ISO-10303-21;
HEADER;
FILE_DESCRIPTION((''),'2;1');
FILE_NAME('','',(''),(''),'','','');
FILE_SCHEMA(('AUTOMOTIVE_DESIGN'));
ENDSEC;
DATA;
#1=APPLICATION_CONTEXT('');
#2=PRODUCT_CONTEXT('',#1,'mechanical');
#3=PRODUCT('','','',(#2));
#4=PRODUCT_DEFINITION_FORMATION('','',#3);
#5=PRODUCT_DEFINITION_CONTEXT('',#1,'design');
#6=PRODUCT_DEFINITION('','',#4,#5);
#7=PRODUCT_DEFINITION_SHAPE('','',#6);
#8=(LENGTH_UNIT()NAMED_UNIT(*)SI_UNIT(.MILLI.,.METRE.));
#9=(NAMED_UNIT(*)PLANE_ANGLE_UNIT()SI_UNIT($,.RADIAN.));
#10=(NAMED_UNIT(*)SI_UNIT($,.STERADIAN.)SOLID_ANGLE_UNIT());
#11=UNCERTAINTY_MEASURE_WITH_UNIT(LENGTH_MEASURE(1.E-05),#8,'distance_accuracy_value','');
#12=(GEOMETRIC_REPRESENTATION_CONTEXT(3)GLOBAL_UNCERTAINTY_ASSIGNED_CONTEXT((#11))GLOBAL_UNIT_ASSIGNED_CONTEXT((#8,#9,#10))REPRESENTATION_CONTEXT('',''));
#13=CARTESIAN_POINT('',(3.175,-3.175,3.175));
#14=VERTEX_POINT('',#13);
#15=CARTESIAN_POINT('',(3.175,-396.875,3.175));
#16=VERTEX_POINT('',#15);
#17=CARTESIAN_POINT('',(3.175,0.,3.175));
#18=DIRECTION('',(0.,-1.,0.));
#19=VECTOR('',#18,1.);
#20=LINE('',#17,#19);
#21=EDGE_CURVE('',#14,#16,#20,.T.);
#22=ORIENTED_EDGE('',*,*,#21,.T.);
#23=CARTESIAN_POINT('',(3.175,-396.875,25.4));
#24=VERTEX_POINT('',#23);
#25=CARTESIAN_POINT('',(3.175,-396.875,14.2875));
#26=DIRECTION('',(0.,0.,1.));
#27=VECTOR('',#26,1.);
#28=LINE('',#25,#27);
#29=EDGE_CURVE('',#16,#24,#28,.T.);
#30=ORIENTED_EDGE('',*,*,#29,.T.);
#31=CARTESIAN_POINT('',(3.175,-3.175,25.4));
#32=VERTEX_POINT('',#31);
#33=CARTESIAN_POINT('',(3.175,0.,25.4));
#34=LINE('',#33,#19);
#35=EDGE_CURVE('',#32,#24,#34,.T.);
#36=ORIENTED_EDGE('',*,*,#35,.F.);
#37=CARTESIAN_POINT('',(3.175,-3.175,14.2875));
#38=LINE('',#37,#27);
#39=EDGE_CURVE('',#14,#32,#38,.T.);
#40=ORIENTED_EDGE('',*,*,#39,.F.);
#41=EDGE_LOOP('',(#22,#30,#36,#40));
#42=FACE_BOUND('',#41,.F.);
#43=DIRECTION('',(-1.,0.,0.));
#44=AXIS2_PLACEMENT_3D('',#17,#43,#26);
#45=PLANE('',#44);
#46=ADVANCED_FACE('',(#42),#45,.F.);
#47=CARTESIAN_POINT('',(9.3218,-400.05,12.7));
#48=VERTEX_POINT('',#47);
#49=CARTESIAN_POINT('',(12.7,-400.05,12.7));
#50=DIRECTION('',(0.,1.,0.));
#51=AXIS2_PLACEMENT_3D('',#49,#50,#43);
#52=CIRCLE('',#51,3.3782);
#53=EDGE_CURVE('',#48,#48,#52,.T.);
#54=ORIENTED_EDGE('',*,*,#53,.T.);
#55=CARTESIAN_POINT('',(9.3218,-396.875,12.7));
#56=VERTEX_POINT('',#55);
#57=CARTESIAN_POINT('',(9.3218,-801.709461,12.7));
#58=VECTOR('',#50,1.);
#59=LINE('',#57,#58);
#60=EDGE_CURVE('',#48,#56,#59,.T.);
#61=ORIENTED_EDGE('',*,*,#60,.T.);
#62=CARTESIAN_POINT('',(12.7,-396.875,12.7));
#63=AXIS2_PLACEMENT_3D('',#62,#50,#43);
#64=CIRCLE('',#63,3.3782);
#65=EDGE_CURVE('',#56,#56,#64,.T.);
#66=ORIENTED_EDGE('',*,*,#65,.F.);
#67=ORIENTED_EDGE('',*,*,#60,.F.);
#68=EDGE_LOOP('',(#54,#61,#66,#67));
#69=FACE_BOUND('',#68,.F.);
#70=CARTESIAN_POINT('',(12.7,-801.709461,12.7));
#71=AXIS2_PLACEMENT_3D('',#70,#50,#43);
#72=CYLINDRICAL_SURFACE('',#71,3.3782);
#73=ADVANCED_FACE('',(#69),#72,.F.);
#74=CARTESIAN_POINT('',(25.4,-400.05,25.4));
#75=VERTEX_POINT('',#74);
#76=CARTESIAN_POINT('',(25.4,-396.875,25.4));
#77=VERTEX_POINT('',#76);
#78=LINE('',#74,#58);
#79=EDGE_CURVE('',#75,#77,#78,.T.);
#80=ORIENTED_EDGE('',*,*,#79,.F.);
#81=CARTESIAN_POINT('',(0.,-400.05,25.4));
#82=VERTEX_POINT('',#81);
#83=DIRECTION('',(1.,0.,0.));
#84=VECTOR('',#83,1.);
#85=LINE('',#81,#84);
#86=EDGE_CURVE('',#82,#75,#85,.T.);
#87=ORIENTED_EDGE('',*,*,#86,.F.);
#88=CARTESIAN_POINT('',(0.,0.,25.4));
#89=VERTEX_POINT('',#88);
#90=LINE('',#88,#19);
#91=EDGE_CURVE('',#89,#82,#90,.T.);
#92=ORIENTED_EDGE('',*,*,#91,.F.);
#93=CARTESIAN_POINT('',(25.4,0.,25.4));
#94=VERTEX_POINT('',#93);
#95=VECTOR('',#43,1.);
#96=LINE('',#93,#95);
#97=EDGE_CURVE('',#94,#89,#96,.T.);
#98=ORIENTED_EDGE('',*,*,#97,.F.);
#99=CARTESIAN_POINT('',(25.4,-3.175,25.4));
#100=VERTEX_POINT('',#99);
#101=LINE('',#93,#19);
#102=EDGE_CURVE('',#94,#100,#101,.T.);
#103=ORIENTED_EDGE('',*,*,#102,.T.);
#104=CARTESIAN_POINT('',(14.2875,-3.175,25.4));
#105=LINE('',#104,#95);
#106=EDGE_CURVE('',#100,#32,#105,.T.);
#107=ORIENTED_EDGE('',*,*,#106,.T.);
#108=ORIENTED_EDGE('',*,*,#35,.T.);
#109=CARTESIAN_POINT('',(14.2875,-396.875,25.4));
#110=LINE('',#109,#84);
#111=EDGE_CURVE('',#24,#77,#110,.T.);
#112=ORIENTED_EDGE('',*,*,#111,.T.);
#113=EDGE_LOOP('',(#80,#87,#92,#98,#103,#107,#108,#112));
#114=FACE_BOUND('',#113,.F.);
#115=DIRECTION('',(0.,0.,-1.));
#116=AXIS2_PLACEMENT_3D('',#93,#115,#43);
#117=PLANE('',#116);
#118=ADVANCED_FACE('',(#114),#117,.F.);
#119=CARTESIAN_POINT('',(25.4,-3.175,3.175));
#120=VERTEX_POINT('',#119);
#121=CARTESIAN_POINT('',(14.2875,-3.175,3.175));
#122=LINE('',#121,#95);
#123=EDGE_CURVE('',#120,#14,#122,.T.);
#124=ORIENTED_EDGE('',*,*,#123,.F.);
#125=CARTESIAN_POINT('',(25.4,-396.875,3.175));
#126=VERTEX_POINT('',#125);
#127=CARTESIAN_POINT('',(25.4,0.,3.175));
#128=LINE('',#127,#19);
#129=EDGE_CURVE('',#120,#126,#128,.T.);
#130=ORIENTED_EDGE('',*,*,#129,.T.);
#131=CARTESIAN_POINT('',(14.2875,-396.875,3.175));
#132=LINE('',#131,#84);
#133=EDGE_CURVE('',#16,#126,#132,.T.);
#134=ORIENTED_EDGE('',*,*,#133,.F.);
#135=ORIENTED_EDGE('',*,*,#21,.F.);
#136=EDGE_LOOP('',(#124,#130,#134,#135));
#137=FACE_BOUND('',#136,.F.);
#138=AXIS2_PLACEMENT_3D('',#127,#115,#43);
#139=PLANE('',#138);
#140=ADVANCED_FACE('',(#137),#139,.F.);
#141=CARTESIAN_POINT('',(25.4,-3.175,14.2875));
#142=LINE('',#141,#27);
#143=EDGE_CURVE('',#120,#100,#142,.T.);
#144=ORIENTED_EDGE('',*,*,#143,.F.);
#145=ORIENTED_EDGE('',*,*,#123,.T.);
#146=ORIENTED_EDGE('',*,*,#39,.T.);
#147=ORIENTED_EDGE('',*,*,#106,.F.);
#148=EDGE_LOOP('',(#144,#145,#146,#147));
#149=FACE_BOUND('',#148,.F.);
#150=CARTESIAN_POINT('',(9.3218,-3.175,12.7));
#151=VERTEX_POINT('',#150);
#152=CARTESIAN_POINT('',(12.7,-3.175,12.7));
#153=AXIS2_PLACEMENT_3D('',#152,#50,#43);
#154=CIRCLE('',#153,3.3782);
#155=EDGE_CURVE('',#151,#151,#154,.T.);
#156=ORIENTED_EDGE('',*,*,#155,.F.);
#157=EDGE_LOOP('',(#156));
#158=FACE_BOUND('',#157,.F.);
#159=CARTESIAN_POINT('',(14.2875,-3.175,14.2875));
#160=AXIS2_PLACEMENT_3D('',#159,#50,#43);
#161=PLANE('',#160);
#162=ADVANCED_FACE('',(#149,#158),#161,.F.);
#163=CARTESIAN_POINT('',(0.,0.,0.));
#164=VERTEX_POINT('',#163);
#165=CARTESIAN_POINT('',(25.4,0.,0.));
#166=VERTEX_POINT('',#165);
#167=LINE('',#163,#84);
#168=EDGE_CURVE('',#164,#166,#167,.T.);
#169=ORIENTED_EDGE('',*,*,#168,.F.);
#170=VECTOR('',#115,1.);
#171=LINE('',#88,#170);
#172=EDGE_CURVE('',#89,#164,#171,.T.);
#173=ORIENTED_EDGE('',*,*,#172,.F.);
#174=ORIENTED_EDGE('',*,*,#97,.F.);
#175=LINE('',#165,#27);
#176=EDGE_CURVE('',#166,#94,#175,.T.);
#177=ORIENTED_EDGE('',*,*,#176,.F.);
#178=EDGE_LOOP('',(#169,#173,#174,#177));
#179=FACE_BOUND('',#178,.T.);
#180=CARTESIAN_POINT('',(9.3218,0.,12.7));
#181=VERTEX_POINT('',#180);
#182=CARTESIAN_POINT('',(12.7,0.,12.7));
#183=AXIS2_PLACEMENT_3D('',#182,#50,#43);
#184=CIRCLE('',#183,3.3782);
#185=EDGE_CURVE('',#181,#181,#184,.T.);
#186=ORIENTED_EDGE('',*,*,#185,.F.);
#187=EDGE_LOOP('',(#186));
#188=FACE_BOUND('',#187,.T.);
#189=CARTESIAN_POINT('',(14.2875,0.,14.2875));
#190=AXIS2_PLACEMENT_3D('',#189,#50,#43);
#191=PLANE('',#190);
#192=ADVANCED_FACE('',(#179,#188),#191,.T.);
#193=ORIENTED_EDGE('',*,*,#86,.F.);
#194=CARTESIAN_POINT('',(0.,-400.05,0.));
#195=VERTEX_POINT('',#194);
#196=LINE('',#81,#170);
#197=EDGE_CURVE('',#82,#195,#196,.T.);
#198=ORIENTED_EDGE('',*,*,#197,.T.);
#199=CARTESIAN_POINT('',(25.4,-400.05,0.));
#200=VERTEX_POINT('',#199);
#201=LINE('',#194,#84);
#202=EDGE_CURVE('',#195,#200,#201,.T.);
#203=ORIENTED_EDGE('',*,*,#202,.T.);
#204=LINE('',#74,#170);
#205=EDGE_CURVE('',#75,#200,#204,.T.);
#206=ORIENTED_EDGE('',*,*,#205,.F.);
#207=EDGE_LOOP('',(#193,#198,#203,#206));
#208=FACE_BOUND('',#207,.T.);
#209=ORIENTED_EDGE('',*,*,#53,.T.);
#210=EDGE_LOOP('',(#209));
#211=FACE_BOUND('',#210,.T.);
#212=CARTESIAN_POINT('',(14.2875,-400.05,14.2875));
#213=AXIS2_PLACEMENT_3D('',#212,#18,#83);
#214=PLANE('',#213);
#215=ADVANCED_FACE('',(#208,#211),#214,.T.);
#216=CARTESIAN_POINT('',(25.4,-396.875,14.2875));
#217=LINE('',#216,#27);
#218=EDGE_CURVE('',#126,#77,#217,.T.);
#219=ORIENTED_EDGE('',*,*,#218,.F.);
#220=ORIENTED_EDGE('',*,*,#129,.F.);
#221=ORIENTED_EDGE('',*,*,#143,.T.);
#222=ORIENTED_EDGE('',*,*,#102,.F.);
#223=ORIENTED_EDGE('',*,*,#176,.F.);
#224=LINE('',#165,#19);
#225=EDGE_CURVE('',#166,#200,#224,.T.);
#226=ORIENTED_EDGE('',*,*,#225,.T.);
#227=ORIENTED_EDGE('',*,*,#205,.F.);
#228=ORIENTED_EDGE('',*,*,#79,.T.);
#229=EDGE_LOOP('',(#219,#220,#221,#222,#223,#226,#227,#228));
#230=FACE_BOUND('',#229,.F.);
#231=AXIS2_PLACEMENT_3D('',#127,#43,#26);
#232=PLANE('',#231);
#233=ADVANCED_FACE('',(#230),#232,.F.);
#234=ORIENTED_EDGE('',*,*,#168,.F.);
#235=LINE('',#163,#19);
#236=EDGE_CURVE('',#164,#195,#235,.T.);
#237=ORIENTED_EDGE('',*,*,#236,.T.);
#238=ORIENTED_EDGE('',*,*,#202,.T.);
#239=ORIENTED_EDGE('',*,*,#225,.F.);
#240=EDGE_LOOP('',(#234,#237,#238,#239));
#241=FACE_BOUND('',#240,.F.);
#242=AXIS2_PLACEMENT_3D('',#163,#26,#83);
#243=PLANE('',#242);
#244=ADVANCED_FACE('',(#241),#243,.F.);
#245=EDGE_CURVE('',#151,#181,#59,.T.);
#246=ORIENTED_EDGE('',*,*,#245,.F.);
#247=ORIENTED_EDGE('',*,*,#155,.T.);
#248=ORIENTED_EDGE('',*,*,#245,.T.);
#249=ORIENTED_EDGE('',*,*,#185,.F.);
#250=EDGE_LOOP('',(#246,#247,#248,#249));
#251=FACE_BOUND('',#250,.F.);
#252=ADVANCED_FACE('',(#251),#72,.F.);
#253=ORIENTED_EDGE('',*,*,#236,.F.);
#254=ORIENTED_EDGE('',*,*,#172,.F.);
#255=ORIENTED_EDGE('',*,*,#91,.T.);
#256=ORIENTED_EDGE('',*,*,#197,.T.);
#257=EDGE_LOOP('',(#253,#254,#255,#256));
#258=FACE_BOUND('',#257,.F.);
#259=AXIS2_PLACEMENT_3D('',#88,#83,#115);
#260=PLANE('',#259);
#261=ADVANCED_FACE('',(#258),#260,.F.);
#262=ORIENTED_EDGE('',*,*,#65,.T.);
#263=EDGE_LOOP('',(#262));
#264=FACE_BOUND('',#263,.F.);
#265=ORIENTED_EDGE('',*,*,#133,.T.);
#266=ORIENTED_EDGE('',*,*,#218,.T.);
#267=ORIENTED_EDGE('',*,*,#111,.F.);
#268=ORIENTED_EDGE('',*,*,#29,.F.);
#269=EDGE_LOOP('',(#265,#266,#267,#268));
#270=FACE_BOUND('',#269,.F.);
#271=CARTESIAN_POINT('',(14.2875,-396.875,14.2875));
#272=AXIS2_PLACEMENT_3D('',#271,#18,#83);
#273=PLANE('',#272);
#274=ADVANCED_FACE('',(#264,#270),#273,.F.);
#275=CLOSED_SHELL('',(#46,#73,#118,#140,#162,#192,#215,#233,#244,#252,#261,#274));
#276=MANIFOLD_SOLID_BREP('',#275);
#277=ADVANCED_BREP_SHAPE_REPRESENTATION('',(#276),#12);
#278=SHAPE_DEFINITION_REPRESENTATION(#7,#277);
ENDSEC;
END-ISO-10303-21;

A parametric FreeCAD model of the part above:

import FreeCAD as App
import Part
import Sketcher

V = App.Vector
Q = App.Units.Quantity

doc = App.newDocument("Part")
body = doc.addObject("PartDesign::Body", "Body")

# Sketch on XZ plane
sketch1 = body.newObject("Sketcher::SketchObject", "Sketch")
sketch1.AttachmentSupport = (doc.getObject("XZ_Plane"), [""])
sketch1.MapMode = "FlatFace"
sketch1.addGeometry(Part.LineSegment(V(0, 25.4, 0), V(0, 0, 0)), False)
sketch1.addGeometry(Part.LineSegment(V(0, 0, 0), V(25.4, 0, 0)), False)
sketch1.addGeometry(Part.LineSegment(V(25.4, 0, 0), V(25.4, 3.2, 0)), False)
sketch1.addGeometry(Part.LineSegment(V(25.4, 3.2, 0), V(3.2, 3.2, 0)), False)
sketch1.addGeometry(Part.LineSegment(V(3.2, 3.2, 0), V(3.2, 25.4, 0)), False)
sketch1.addGeometry(Part.LineSegment(V(3.2, 25.4, 0), V(0, 25.4, 0)), False)
sketch1.addConstraint(Sketcher.Constraint("Coincident", 0, 2, 1, 1))
sketch1.addConstraint(Sketcher.Constraint("Coincident", 1, 2, 2, 1))
sketch1.addConstraint(Sketcher.Constraint("Coincident", 2, 2, 3, 1))
sketch1.addConstraint(Sketcher.Constraint("Coincident", 3, 2, 4, 1))
sketch1.addConstraint(Sketcher.Constraint("Coincident", 4, 2, 5, 1))
sketch1.addConstraint(Sketcher.Constraint("Coincident", 5, 2, 0, 1))
sketch1.addConstraint(Sketcher.Constraint("Vertical", 0))
sketch1.addConstraint(Sketcher.Constraint("Horizontal", 1))
sketch1.addConstraint(Sketcher.Constraint("Vertical", 2))
sketch1.addConstraint(Sketcher.Constraint("Horizontal", 3))
sketch1.addConstraint(Sketcher.Constraint("Vertical", 4))
sketch1.addConstraint(Sketcher.Constraint("Horizontal", 5))
sketch1.addConstraint(Sketcher.Constraint("Coincident", 0, 2, -1, 1))
sketch1.addConstraint(Sketcher.Constraint("Equal", 1, 0))
sketch1.addConstraint(Sketcher.Constraint("Equal", 5, 2))
sketch1.addConstraint(Sketcher.Constraint("DistanceX", 1, 1, 1, 2, Q("1 in")))
sketch1.addConstraint(Sketcher.Constraint("DistanceX", 3, 2, 3, 1, Q("0.875 in")))
pad1 = body.newObject("PartDesign::Pad", "Pad")
pad1.Profile = sketch1
pad1.Length = Q("15.75 in")

# Sketch on XZ plane
sketch2 = body.newObject("Sketcher::SketchObject", "Sketch001")
sketch2.AttachmentSupport = (doc.getObject("XZ_Plane"), [""])
sketch2.MapMode = "FlatFace"
sketch2.AttachmentOffset = App.Placement(V(0, 0, 15.75 * 25.4), App.Rotation())
sketch2.addGeometry(Part.LineSegment(V(3, 25, 0), V(3, 3, 0)), False)
sketch2.addGeometry(Part.LineSegment(V(3, 3, 0), V(25, 3, 0)), False)
sketch2.addGeometry(Part.LineSegment(V(25, 3, 0), V(25, 25, 0)), False)
sketch2.addGeometry(Part.LineSegment(V(25, 25, 0), V(3, 25, 0)), False)
sketch2.addConstraint(Sketcher.Constraint("Coincident", 0, 2, 1, 1))
sketch2.addConstraint(Sketcher.Constraint("Coincident", 1, 2, 2, 1))
sketch2.addConstraint(Sketcher.Constraint("Coincident", 2, 2, 3, 1))
sketch2.addConstraint(Sketcher.Constraint("Coincident", 3, 2, 0, 1))
sketch2.addConstraint(Sketcher.Constraint("Vertical", 0))
sketch2.addConstraint(Sketcher.Constraint("Horizontal", 1))
sketch2.addConstraint(Sketcher.Constraint("Vertical", 2))
sketch2.addConstraint(Sketcher.Constraint("Horizontal", 3))
sketch2.addConstraint(Sketcher.Constraint("Equal", 3, 0))
sketch2.addConstraint(Sketcher.Constraint("DistanceX", -1, 1, 1, 2, Q("1 in")))
sketch2.addConstraint(Sketcher.Constraint("DistanceY", -1, 1, 2, 2, Q("1 in")))
sketch2.addConstraint(Sketcher.Constraint("DistanceX", 1, 1, 1, 2, Q("0.875 in")))
pad2 = body.newObject("PartDesign::Pad", "Pad001")
pad2.Profile = sketch2
pad2.Length = Q("0.125 in")
pad2.Reversed = True

# Sketch on XZ plane
sketch3 = body.newObject("Sketcher::SketchObject", "Sketch002")
sketch3.AttachmentSupport = (doc.getObject("XZ_Plane"), [""])
sketch3.MapMode = "FlatFace"
sketch3.addGeometry(Part.LineSegment(V(25, 25, 0), V(25, 3, 0)), False)
sketch3.addGeometry(Part.LineSegment(V(25, 3, 0), V(3, 3, 0)), False)
sketch3.addGeometry(Part.LineSegment(V(3, 3, 0), V(3, 25, 0)), False)
sketch3.addGeometry(Part.LineSegment(V(3, 25, 0), V(25, 25, 0)), False)
sketch3.addConstraint(Sketcher.Constraint("Coincident", 0, 2, 1, 1))
sketch3.addConstraint(Sketcher.Constraint("Coincident", 1, 2, 2, 1))
sketch3.addConstraint(Sketcher.Constraint("Coincident", 2, 2, 3, 1))
sketch3.addConstraint(Sketcher.Constraint("Coincident", 3, 2, 0, 1))
sketch3.addConstraint(Sketcher.Constraint("Vertical", 0))
sketch3.addConstraint(Sketcher.Constraint("Horizontal", 1))
sketch3.addConstraint(Sketcher.Constraint("Vertical", 2))
sketch3.addConstraint(Sketcher.Constraint("Horizontal", 3))
sketch3.addConstraint(Sketcher.Constraint("Equal", 3, 0))
sketch3.addConstraint(Sketcher.Constraint("DistanceX", -1, 1, 0, 2, Q("1 in")))
sketch3.addConstraint(Sketcher.Constraint("DistanceY", -1, 1, 2, 2, Q("1 in")))
sketch3.addConstraint(Sketcher.Constraint("DistanceX", 1, 2, 1, 1, Q("0.875 in")))
pad3 = body.newObject("PartDesign::Pad", "Pad002")
pad3.Profile = sketch3
pad3.Length = Q("0.125 in")

# Sketch on XZ plane
sketch4 = body.newObject("Sketcher::SketchObject", "Sketch003")
sketch4.AttachmentSupport = (doc.getObject("XZ_Plane"), [""])
sketch4.MapMode = "FlatFace"
sketch4.AttachmentOffset = App.Placement(V(0, 0, 15.75 * 25.4), App.Rotation())
sketch4.addGeometry(Part.Circle(V(12.7, 12.7, 0), V(0, 0, 1), 3.4), False)
sketch4.addConstraint(Sketcher.Constraint("Diameter", 0, Q("0.266 in")))
sketch4.addConstraint(Sketcher.Constraint("DistanceX", -1, 1, 0, 3, Q("0.5 in")))
sketch4.addConstraint(Sketcher.Constraint("DistanceY", -1, 1, 0, 3, Q("0.5 in")))
doc.recompute()
hole = body.newObject("PartDesign::Hole", "Hole")
hole.Profile = sketch4
hole.ThreadType = "None"
hole.Diameter = Q("0.266 in")
hole.DepthType = "ThroughAll"

doc.recompute()
